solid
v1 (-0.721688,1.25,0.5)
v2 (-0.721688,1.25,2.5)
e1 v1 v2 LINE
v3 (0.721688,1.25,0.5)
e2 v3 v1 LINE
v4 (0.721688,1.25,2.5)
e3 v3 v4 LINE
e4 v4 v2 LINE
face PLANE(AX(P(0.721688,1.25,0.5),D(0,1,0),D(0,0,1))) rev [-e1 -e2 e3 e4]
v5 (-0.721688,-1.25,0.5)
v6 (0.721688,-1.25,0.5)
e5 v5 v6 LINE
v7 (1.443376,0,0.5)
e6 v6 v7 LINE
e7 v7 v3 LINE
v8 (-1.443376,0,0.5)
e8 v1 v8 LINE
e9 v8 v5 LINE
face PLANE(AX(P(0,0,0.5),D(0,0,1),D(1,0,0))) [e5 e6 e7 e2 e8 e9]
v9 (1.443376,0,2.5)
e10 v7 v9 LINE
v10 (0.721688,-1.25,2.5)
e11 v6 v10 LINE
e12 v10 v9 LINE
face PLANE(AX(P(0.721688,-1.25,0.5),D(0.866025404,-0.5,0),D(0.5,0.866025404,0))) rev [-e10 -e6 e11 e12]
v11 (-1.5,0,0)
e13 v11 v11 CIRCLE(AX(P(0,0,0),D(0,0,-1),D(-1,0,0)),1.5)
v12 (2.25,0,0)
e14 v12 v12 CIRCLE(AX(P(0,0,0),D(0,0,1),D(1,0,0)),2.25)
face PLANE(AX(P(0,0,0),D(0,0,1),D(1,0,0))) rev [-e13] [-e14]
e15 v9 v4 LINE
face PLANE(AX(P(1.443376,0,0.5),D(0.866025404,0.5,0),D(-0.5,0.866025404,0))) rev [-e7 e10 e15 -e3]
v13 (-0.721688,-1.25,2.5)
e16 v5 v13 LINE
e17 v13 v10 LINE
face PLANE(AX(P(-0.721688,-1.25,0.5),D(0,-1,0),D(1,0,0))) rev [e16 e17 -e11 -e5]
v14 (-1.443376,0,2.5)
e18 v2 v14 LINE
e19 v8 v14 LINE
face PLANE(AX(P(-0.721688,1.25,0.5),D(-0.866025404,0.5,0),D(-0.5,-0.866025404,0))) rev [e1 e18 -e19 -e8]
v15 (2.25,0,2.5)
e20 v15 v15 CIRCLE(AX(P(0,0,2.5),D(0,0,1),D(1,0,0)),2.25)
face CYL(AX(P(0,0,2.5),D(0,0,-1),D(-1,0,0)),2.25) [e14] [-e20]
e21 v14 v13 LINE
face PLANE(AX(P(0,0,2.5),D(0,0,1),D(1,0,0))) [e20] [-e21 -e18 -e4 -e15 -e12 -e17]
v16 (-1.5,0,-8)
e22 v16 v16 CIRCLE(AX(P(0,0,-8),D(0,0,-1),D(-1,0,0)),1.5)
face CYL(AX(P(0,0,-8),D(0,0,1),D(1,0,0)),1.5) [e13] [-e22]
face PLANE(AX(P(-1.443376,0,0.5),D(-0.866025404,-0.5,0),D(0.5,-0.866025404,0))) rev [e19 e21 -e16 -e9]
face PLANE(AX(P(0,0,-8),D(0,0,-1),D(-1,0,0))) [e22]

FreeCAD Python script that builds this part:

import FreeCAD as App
import Part
import Sketcher
from FreeCAD import Vector
Q = App.Units.Quantity

doc = App.newDocument("Part")
body = doc.addObject("PartDesign::Body", "Body")

sketch1 = body.newObject("Sketcher::SketchObject", "Sketch")
sketch1.AttachmentSupport = (doc.getObject("XY_Plane"), [""])
sketch1.MapMode = "FlatFace"
sketch1.addGeometry(Part.Circle(Vector(0, 0, 0), Vector(0, 0, 1), 2.2), False)
sketch1.addConstraint([
    Sketcher.Constraint("Coincident", 0, 3, -1, 1),
    Sketcher.Constraint("Diameter", 0, 4.5),
])
pad1 = body.newObject("PartDesign::Pad", "Pad")
pad1.Profile = sketch1
pad1.Length = 2.5

sketch2 = body.newObject("Sketcher::SketchObject", "Sketch001")
sketch2.AttachmentSupport = (doc.getObject("XY_Plane"), [""])
sketch2.MapMode = "FlatFace"
sketch2.AttachmentOffset = App.Placement(Vector(0, 0, 2.5), App.Rotation())
sketch2.addGeometry([
    Part.LineSegment(Vector(1.4, 0, 0), Vector(0.7, 1.2, 0)),
    Part.LineSegment(Vector(0.7, 1.2, 0), Vector(-0.7, 1.2, 0)),
    Part.LineSegment(Vector(-0.7, 1.2, 0), Vector(-1.4, 0, 0)),
    Part.LineSegment(Vector(-1.4, 0, 0), Vector(-0.7, -1.2, 0)),
    Part.LineSegment(Vector(-0.7, -1.2, 0), Vector(0.7, -1.2, 0)),
    Part.LineSegment(Vector(0.7, -1.2, 0), Vector(1.4, 0, 0)),
], False)
sketch2.addConstraint([
    Sketcher.Constraint("Coincident", 0, 2, 1, 1),
    Sketcher.Constraint("Coincident", 1, 2, 2, 1),
    Sketcher.Constraint("Coincident", 2, 2, 3, 1),
    Sketcher.Constraint("Coincident", 3, 2, 4, 1),
    Sketcher.Constraint("Coincident", 4, 2, 5, 1),
    Sketcher.Constraint("Coincident", 5, 2, 0, 1),
    Sketcher.Constraint("Horizontal", 1),
    Sketcher.Constraint("Horizontal", 4),
    Sketcher.Constraint("Symmetric", 0, 2, 3, 2, -1, 1),
    Sketcher.Constraint("Symmetric", 2, 2, 5, 2, -1, 1),
    Sketcher.Constraint("PointOnObject", 2, 2, -1),
    Sketcher.Constraint("Parallel", 2, 5),
    Sketcher.Constraint("Vertical", 1, 2, 3, 2),
    Sketcher.Constraint("Angle", 0, Q("120 deg")),
    Sketcher.Constraint("DistanceY", 3, 2, 1, 2, 2.5),
    Sketcher.Constraint("DistanceX", 1, 2, 1, 1, 1.443376),
])
pocket1 = body.newObject("PartDesign::Pocket", "Pocket")
pocket1.Profile = sketch2
pocket1.Length = 2

sketch3 = body.newObject("Sketcher::SketchObject", "Sketch002")
sketch3.AttachmentSupport = (doc.getObject("XY_Plane"), [""])
sketch3.MapMode = "FlatFace"
sketch3.addGeometry(Part.Circle(Vector(0, 0, 0), Vector(0, 0, 1), 1.5), False)
sketch3.addConstraint([
    Sketcher.Constraint("Coincident", 0, 3, -1, 1),
    Sketcher.Constraint("Diameter", 0, 3.0),
])
pad2 = body.newObject("PartDesign::Pad", "Pad001")
pad2.Profile = sketch3
pad2.Length = 8
pad2.Reversed = True

doc.recompute()
